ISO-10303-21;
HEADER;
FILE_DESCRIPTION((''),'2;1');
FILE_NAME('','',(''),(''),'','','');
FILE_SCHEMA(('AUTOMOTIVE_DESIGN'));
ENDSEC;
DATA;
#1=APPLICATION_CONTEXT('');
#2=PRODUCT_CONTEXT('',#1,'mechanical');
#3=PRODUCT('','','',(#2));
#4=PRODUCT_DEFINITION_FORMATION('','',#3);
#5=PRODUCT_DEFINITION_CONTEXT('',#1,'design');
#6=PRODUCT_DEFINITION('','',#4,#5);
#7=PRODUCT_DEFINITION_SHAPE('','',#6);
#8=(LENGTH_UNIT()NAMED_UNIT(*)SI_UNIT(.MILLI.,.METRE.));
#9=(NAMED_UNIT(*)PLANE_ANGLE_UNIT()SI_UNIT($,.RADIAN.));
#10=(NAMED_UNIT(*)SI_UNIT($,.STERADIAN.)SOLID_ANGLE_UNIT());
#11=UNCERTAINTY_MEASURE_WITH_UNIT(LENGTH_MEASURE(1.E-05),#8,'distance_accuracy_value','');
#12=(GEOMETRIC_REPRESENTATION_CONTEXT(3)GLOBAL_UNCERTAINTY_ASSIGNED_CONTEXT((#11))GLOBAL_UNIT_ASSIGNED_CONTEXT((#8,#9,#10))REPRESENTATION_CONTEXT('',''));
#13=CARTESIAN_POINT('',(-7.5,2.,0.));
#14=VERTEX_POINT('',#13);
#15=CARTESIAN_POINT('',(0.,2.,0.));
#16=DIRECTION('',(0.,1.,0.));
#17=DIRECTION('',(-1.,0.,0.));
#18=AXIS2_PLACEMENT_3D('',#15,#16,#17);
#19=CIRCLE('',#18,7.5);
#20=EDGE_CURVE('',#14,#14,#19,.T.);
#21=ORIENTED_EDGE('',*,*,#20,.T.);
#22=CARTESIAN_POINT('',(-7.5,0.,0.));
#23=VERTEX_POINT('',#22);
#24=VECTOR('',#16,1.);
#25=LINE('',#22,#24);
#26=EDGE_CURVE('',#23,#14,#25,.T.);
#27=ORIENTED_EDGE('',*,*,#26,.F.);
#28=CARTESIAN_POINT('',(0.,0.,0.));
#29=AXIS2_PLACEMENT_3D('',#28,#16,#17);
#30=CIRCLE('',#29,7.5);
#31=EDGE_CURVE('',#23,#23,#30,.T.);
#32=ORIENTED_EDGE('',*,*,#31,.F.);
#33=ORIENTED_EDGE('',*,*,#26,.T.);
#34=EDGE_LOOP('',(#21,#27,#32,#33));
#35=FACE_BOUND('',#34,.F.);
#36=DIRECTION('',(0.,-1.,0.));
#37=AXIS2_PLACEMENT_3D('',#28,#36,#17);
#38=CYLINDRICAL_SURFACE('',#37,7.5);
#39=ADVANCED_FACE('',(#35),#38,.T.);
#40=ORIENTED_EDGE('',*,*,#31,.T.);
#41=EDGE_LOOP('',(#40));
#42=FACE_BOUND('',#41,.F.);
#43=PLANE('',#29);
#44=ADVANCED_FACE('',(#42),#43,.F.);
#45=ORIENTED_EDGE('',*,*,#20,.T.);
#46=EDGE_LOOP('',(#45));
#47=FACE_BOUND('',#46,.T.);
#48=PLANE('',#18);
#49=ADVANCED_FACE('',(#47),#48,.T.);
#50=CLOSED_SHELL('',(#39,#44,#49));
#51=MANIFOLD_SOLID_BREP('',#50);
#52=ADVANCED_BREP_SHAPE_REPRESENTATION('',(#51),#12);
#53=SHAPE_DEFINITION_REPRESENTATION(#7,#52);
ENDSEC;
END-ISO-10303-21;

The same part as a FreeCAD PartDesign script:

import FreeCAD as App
import Part
import Sketcher
from FreeCAD import Vector
Q = App.Units.Quantity

doc = App.newDocument("Part")
body = doc.addObject("PartDesign::Body", "Body")

# Sketch on XZ plane
sketch1 = body.newObject("Sketcher::SketchObject", "Sketch")
sketch1.AttachmentSupport = (doc.getObject("XZ_Plane"), [""])
sketch1.MapMode = "FlatFace"
sketch1.addGeometry(Part.Circle(Vector(0, 0, 0), Vector(0, 0, 1), 7.5), False)
sketch1.addConstraint(Sketcher.Constraint("Coincident", 0, 3, -1, 1))
sketch1.addConstraint(Sketcher.Constraint("Diameter", 0, Q("15 mm")))
pad1 = body.newObject("PartDesign::Pad", "Pad")
pad1.Profile = sketch1
pad1.Length = 2
pad1.Reversed = True

doc.recompute()
